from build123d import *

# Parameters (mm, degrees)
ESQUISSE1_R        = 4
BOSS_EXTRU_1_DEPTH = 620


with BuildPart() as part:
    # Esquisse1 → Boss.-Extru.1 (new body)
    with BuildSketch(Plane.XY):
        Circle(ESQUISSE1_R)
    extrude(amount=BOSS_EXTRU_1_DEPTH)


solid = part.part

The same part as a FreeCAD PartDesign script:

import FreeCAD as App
import Part
import Sketcher
from FreeCAD import Vector

doc = App.newDocument("Part")
body = doc.addObject("PartDesign::Body", "Body")

sketch1 = body.newObject("Sketcher::SketchObject", "Sketch")
sketch1.AttachmentSupport = (doc.getObject("XY_Plane"), [""])
sketch1.MapMode = "FlatFace"
sketch1.addGeometry(Part.Circle(Vector(0, 0, 0), Vector(0, 0, 1), 4), False)
sketch1.addConstraint([
    Sketcher.Constraint("Coincident", 0, 3, -1, 1),
    Sketcher.Constraint("Diameter", 0, 8.0),
])
pad1 = body.newObject("PartDesign::Pad", "Pad")
pad1.Profile = sketch1
pad1.Length = 620

doc.recompute()
